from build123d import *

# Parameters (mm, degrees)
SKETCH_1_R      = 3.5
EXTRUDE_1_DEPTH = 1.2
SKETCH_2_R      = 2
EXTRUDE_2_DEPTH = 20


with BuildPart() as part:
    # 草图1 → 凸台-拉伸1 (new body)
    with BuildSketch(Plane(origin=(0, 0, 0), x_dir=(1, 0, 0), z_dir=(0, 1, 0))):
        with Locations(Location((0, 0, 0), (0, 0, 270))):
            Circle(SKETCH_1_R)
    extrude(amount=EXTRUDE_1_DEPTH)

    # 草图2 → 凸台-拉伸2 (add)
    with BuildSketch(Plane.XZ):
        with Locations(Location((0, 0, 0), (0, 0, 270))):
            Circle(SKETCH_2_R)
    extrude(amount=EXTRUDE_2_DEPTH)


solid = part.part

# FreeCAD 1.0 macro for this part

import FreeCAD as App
import Part
import Sketcher

V = App.Vector

doc = App.newDocument("Part")
body = doc.addObject("PartDesign::Body", "Body")

sketch1 = body.newObject("Sketcher::SketchObject", "Sketch")
sketch1.AttachmentSupport = (doc.getObject("XZ_Plane"), [""])
sketch1.MapMode = "FlatFace"
sketch1.addGeometry(Part.Circle(V(0, 0, 0), V(0, 0, 1), 3.5), False)
sketch1.addConstraint(Sketcher.Constraint("Coincident", 0, 3, -1, 1))
sketch1.addConstraint(Sketcher.Constraint("Diameter", 0, 7.0))
pad1 = body.newObject("PartDesign::Pad", "Pad")
pad1.Profile = sketch1
pad1.Length = 1.2
pad1.Reversed = True

sketch2 = body.newObject("Sketcher::SketchObject", "Sketch001")
sketch2.AttachmentSupport = (doc.getObject("XZ_Plane"), [""])
sketch2.MapMode = "FlatFace"
sketch2.addGeometry(Part.Circle(V(0, 0, 0), V(0, 0, 1), 2), False)
sketch2.addConstraint(Sketcher.Constraint("Coincident", 0, 3, -1, 1))
sketch2.addConstraint(Sketcher.Constraint("Diameter", 0, 4.0))
pad2 = body.newObject("PartDesign::Pad", "Pad001")
pad2.Profile = sketch2
pad2.Length = 20

doc.recompute()
